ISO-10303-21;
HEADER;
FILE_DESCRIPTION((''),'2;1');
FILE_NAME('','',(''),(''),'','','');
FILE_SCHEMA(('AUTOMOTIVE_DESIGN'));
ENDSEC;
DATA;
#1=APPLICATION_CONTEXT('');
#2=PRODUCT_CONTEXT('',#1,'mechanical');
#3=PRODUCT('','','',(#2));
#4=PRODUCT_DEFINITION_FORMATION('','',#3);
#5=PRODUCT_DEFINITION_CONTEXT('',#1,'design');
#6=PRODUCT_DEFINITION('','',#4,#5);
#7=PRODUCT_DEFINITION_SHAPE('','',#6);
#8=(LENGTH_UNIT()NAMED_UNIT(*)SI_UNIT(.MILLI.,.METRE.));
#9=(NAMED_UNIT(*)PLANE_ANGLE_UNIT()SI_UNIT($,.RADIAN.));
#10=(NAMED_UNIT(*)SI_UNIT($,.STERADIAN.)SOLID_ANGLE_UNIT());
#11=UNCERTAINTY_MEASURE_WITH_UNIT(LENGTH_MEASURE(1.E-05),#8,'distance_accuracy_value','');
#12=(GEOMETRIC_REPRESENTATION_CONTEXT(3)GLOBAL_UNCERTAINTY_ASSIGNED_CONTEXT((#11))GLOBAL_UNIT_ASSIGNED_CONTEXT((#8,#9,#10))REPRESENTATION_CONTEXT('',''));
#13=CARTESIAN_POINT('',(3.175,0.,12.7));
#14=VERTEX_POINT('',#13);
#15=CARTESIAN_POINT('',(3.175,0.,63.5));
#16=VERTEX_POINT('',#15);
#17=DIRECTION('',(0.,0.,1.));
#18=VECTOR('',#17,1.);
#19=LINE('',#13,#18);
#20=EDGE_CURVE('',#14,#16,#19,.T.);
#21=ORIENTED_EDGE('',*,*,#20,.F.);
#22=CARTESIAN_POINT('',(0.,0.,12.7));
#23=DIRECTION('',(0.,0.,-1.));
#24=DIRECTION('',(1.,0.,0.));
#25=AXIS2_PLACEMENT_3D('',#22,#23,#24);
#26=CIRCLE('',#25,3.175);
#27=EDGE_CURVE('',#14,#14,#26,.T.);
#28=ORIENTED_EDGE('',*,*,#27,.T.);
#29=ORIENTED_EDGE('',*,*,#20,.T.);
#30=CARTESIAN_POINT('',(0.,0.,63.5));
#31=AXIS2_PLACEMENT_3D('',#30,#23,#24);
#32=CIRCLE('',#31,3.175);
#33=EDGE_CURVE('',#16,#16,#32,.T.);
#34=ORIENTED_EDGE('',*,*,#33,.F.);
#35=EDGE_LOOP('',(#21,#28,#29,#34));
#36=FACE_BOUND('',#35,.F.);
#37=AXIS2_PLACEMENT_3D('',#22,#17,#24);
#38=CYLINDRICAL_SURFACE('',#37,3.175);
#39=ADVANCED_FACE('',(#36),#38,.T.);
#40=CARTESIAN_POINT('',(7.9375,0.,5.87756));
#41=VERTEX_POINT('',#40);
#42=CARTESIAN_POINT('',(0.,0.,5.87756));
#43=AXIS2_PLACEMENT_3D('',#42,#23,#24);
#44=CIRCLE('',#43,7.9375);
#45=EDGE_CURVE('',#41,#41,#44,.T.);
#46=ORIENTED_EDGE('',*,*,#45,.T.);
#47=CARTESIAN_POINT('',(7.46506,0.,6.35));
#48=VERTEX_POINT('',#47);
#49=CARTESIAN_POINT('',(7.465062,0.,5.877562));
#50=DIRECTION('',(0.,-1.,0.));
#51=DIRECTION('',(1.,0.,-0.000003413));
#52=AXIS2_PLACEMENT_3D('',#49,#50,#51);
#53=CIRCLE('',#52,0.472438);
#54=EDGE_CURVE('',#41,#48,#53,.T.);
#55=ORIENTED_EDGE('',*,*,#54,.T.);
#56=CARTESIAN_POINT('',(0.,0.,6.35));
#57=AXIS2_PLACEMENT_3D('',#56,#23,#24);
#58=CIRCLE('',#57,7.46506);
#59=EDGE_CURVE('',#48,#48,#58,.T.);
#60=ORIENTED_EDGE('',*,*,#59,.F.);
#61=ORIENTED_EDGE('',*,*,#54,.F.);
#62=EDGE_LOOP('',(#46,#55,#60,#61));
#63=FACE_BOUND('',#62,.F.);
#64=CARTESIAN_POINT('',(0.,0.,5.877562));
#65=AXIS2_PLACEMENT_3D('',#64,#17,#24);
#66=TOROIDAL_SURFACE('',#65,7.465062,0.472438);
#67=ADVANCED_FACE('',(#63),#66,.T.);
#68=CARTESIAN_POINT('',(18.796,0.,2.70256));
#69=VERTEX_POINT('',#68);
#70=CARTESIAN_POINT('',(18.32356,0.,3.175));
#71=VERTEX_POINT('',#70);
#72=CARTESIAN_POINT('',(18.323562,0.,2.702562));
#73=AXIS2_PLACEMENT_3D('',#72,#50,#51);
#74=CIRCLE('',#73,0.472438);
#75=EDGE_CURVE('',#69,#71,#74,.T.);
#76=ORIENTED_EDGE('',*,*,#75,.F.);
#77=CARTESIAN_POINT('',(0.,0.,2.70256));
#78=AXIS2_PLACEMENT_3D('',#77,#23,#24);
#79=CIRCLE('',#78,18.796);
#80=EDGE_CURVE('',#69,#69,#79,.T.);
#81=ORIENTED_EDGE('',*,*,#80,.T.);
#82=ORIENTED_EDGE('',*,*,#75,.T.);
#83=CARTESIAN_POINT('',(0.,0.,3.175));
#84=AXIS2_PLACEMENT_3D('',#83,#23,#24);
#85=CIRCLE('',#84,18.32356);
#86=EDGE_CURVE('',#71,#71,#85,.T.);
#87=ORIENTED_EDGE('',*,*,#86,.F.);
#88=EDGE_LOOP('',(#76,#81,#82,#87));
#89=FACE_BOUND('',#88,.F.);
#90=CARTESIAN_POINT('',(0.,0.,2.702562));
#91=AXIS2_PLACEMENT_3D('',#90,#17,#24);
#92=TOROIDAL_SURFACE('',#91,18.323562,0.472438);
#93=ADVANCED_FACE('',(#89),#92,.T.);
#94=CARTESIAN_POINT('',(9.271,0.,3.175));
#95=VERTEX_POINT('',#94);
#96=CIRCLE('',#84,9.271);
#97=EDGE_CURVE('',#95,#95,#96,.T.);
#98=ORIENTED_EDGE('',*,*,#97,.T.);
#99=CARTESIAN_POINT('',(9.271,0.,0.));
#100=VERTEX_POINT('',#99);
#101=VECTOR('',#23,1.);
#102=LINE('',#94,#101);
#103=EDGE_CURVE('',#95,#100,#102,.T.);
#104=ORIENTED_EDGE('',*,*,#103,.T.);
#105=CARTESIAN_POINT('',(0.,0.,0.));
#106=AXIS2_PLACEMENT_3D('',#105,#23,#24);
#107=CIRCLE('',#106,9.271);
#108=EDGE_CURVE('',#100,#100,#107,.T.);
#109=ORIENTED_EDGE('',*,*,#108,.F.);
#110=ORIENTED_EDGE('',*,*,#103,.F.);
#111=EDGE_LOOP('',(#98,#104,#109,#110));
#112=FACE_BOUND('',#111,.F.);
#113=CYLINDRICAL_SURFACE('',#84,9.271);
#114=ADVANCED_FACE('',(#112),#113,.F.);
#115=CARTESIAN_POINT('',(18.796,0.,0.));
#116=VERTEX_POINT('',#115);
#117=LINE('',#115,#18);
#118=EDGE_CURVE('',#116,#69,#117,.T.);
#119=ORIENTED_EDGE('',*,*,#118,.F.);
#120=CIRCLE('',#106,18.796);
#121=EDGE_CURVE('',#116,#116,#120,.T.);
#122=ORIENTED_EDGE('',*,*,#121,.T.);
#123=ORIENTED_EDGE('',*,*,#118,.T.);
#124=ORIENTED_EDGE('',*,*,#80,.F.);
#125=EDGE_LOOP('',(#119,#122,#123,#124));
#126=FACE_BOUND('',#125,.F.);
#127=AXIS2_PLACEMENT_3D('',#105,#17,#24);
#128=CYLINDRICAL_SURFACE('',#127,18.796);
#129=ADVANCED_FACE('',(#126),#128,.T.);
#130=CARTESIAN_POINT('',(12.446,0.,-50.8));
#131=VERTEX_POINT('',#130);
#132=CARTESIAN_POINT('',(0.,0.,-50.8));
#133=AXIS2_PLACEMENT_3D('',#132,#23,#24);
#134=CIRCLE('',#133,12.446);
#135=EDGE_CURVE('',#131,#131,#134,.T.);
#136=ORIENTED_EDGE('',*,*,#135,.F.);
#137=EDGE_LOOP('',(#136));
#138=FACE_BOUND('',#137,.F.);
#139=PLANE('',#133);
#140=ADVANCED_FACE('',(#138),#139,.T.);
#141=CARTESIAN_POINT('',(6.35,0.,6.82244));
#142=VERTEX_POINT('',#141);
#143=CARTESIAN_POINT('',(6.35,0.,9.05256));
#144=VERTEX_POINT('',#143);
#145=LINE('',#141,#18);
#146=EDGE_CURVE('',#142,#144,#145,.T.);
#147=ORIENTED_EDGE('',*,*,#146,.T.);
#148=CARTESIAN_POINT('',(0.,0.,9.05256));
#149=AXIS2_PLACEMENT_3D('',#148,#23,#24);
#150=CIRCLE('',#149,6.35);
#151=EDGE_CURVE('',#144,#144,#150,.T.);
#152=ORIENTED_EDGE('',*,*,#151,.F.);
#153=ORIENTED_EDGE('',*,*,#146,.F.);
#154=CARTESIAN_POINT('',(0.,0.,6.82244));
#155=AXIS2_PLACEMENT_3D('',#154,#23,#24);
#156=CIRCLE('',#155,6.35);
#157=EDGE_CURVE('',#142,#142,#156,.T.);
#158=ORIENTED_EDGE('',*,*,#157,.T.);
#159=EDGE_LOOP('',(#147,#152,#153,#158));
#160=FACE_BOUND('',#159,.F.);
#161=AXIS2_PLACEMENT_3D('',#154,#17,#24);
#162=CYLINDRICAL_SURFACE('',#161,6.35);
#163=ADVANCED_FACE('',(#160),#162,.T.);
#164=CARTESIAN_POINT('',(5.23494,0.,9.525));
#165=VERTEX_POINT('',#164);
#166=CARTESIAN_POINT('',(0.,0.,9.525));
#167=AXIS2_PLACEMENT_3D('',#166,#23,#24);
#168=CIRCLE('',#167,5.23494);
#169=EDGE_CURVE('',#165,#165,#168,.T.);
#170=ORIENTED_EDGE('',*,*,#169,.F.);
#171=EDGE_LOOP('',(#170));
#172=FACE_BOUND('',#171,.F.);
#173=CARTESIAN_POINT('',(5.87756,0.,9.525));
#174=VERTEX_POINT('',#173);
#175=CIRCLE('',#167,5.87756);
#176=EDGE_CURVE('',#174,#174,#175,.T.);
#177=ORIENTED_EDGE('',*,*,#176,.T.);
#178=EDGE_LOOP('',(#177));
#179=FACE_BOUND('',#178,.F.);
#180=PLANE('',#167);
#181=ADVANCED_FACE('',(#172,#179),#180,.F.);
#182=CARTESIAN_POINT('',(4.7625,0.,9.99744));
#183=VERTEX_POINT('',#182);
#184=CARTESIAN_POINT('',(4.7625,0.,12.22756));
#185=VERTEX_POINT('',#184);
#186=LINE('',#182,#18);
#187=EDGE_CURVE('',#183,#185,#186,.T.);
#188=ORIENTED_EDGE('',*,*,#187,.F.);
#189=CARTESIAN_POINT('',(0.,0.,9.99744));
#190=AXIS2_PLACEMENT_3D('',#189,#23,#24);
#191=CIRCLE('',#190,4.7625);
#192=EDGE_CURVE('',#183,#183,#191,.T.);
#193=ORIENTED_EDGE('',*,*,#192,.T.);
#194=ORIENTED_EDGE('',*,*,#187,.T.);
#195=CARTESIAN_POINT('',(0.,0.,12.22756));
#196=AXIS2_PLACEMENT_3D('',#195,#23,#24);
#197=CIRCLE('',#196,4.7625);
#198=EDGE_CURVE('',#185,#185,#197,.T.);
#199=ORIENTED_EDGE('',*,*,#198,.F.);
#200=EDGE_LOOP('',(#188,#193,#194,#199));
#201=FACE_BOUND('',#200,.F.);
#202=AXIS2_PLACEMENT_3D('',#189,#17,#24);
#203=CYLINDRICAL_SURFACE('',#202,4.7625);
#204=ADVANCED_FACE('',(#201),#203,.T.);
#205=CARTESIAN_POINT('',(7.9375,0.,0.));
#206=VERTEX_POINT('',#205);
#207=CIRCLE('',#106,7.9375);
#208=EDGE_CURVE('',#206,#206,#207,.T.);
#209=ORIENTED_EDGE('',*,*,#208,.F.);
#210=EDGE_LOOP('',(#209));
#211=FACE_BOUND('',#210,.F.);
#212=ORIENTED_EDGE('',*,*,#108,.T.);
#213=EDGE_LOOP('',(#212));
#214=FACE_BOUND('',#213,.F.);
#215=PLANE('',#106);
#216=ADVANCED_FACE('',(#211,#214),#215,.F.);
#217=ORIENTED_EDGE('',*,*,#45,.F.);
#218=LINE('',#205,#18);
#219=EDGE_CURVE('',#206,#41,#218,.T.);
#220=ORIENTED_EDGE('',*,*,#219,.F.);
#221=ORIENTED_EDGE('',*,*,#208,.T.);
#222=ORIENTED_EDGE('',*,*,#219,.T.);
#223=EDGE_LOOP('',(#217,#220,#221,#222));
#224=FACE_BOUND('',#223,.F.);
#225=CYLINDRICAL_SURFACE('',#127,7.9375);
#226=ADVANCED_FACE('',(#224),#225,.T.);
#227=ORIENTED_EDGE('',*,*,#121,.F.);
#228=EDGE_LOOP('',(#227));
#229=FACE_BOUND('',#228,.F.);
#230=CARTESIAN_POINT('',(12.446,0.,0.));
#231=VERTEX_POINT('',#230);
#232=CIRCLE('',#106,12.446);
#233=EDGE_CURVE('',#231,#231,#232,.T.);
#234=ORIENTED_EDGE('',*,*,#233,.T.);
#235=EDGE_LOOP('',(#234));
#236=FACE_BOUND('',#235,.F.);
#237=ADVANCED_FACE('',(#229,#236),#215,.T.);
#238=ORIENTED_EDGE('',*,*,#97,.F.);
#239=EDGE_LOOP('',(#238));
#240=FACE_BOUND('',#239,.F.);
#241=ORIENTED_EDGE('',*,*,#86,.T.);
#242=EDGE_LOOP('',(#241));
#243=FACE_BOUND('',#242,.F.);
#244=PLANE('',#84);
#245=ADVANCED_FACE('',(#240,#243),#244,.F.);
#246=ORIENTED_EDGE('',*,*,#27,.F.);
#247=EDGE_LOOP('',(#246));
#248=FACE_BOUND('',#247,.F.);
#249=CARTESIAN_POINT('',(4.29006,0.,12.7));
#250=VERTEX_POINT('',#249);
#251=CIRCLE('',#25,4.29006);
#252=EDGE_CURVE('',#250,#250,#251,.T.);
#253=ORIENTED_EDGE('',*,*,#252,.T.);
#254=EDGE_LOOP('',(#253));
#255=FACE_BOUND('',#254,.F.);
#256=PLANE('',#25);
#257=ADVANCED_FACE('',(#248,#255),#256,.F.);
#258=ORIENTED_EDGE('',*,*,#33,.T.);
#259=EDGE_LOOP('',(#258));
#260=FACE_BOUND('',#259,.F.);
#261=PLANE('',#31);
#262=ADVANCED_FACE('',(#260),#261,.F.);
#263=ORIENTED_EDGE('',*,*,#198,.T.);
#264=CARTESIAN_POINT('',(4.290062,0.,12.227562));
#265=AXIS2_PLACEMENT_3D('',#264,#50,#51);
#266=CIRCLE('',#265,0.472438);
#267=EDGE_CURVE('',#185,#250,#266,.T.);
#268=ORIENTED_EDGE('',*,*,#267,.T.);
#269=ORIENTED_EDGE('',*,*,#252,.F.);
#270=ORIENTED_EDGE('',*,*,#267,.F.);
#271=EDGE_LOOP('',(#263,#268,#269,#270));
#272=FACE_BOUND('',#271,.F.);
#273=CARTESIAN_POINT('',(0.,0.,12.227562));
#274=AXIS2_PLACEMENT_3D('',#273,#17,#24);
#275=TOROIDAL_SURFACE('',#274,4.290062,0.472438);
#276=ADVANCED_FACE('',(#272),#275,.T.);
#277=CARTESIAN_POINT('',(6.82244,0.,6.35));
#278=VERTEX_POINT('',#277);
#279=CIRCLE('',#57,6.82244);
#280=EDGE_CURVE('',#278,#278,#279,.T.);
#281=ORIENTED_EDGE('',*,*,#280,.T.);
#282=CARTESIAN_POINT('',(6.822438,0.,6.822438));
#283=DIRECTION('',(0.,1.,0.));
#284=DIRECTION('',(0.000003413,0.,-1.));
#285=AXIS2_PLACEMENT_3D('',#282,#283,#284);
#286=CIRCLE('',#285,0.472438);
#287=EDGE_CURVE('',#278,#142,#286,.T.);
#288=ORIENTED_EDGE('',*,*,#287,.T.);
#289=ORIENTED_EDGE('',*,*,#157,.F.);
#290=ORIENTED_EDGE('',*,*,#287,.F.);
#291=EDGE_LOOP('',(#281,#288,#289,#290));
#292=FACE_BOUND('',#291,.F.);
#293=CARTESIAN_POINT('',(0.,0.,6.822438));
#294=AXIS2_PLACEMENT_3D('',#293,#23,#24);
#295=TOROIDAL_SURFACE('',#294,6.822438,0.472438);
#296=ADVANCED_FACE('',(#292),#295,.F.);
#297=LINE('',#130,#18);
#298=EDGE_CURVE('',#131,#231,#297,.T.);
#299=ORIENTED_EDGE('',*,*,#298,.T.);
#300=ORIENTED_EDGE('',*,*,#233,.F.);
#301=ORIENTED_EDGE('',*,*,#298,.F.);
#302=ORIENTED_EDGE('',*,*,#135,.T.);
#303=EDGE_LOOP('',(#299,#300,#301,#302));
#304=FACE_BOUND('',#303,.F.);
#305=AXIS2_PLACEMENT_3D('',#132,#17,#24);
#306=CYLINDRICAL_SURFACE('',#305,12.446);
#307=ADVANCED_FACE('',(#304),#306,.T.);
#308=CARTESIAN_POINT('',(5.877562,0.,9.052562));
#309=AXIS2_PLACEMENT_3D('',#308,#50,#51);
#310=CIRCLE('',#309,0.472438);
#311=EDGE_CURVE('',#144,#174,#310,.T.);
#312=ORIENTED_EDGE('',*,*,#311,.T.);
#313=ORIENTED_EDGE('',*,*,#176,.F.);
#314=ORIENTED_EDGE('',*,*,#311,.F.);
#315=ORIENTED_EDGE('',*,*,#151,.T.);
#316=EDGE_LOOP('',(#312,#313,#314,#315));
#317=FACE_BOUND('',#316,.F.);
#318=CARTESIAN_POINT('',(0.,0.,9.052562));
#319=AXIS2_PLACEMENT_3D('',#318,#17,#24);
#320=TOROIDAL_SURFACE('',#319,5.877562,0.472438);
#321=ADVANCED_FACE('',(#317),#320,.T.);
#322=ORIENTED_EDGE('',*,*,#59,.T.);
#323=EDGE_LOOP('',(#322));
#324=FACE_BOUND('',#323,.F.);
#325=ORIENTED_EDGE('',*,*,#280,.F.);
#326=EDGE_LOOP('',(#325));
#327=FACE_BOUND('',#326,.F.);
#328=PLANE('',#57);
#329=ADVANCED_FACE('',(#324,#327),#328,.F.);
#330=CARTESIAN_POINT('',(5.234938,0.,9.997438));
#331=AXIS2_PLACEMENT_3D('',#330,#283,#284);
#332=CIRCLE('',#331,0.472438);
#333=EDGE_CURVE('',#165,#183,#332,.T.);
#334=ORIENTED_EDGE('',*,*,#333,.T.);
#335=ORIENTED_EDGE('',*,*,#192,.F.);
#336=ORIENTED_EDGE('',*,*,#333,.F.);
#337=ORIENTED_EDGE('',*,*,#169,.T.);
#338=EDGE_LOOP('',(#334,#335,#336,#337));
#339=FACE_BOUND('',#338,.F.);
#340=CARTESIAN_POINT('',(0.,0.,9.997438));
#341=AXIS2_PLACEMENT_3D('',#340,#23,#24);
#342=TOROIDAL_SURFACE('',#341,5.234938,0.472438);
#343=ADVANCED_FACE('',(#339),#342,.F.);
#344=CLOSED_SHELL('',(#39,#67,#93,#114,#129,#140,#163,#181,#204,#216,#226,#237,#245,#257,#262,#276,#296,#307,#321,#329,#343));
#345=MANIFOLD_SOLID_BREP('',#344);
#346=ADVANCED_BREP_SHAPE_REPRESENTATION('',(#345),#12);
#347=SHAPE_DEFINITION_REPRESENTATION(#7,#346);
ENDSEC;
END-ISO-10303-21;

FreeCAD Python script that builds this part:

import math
import FreeCAD as App
import Part
import Sketcher

V = App.Vector
Q = App.Units.Quantity

doc = App.newDocument("Part")
body = doc.addObject("PartDesign::Body", "Body")

# Sketch on XZ plane
sketch1 = body.newObject("Sketcher::SketchObject", "Sketch")
sketch1.AttachmentSupport = (doc.getObject("XZ_Plane"), [""])
sketch1.MapMode = "FlatFace"
sketch1.addGeometry(Part.LineSegment(V(0, -50.8, 0), V(12.45, -50.8, 0)), False)
sketch1.addGeometry(Part.LineSegment(V(12.45, -50.8, 0), V(12.45, 0, 0)), False)
sketch1.addGeometry(Part.LineSegment(V(12.45, 0, 0), V(18.8, 0, 0)), False)
sketch1.addGeometry(Part.LineSegment(V(18.8, 0, 0), V(18.8, 2.7, 0)), False)
sketch1.addGeometry(Part.ArcOfCircle(Part.Circle(V(18.32, 2.7, 0), V(0, 0, 1), 0.47), math.radians(0), math.radians(90)), False)
sketch1.addGeometry(Part.LineSegment(V(18.32, 3.17, 0), V(9.27, 3.17, 0)), False)
sketch1.addGeometry(Part.LineSegment(V(9.27, 3.17, 0), V(9.27, 0, 0)), False)
sketch1.addGeometry(Part.LineSegment(V(9.27, 0, 0), V(7.94, 0, 0)), False)
sketch1.addGeometry(Part.LineSegment(V(7.94, 0, 0), V(7.94, 5.88, 0)), False)
sketch1.addGeometry(Part.ArcOfCircle(Part.Circle(V(7.47, 5.88, 0), V(0, 0, 1), 0.47), math.radians(0), math.radians(90)), False)
sketch1.addGeometry(Part.LineSegment(V(7.47, 6.35, 0), V(6.82, 6.35, 0)), False)
sketch1.addGeometry(Part.ArcOfCircle(Part.Circle(V(6.82, 6.82, 0), V(0, 0, 1), 0.47), math.radians(180), math.radians(270)), False)
sketch1.addGeometry(Part.LineSegment(V(6.35, 6.82, 0), V(6.35, 9.05, 0)), False)
sketch1.addGeometry(Part.ArcOfCircle(Part.Circle(V(5.88, 9.05, 0), V(0, 0, 1), 0.47), math.radians(0), math.radians(90)), False)
sketch1.addGeometry(Part.LineSegment(V(5.88, 9.53, 0), V(5.23, 9.53, 0)), False)
sketch1.addGeometry(Part.ArcOfCircle(Part.Circle(V(5.23, 10, 0), V(0, 0, 1), 0.47), math.radians(180), math.radians(270)), False)
sketch1.addGeometry(Part.LineSegment(V(4.76, 10, 0), V(4.76, 12.23, 0)), False)
sketch1.addGeometry(Part.ArcOfCircle(Part.Circle(V(4.29, 12.23, 0), V(0, 0, 1), 0.47), math.radians(0), math.radians(90)), False)
sketch1.addGeometry(Part.LineSegment(V(4.29, 12.7, 0), V(3.17, 12.7, 0)), False)
sketch1.addGeometry(Part.LineSegment(V(3.17, 12.7, 0), V(3.17, 63.5, 0)), False)
sketch1.addGeometry(Part.LineSegment(V(3.17, 63.5, 0), V(0, 63.5, 0)), False)
sketch1.addGeometry(Part.LineSegment(V(0, 63.5, 0), V(0, -50.8, 0)), False)
sketch1.addConstraint(Sketcher.Constraint("Coincident", 0, 2, 1, 1))
sketch1.addConstraint(Sketcher.Constraint("Coincident", 1, 2, 2, 1))
sketch1.addConstraint(Sketcher.Constraint("Coincident", 2, 2, 3, 1))
sketch1.addConstraint(Sketcher.Constraint("Coincident", 3, 2, 4, 1))
sketch1.addConstraint(Sketcher.Constraint("Coincident", 4, 2, 5, 1))
sketch1.addConstraint(Sketcher.Constraint("Coincident", 5, 2, 6, 1))
sketch1.addConstraint(Sketcher.Constraint("Coincident", 6, 2, 7, 1))
sketch1.addConstraint(Sketcher.Constraint("Coincident", 7, 2, 8, 1))
sketch1.addConstraint(Sketcher.Constraint("Coincident", 8, 2, 9, 1))
sketch1.addConstraint(Sketcher.Constraint("Coincident", 9, 2, 10, 1))
sketch1.addConstraint(Sketcher.Constraint("Coincident", 10, 2, 11, 2))
sketch1.addConstraint(Sketcher.Constraint("Coincident", 11, 1, 12, 1))
sketch1.addConstraint(Sketcher.Constraint("Coincident", 12, 2, 13, 1))
sketch1.addConstraint(Sketcher.Constraint("Coincident", 13, 2, 14, 1))
sketch1.addConstraint(Sketcher.Constraint("Coincident", 14, 2, 15, 2))
sketch1.addConstraint(Sketcher.Constraint("Coincident", 15, 1, 16, 1))
sketch1.addConstraint(Sketcher.Constraint("Coincident", 16, 2, 17, 1))
sketch1.addConstraint(Sketcher.Constraint("Coincident", 17, 2, 18, 1))
sketch1.addConstraint(Sketcher.Constraint("Coincident", 18, 2, 19, 1))
sketch1.addConstraint(Sketcher.Constraint("Coincident", 19, 2, 20, 1))
sketch1.addConstraint(Sketcher.Constraint("Coincident", 20, 2, 21, 1))
sketch1.addConstraint(Sketcher.Constraint("Coincident", 21, 2, 0, 1))
sketch1.addConstraint(Sketcher.Constraint("Horizontal", 0))
sketch1.addConstraint(Sketcher.Constraint("Vertical", 1))
sketch1.addConstraint(Sketcher.Constraint("Horizontal", 2))
sketch1.addConstraint(Sketcher.Constraint("Vertical", 3))
sketch1.addConstraint(Sketcher.Constraint("Horizontal", 5))
sketch1.addConstraint(Sketcher.Constraint("Vertical", 6))
sketch1.addConstraint(Sketcher.Constraint("Horizontal", 7))
sketch1.addConstraint(Sketcher.Constraint("Vertical", 8))
sketch1.addConstraint(Sketcher.Constraint("Horizontal", 10))
sketch1.addConstraint(Sketcher.Constraint("Vertical", 12))
sketch1.addConstraint(Sketcher.Constraint("Horizontal", 14))
sketch1.addConstraint(Sketcher.Constraint("Vertical", 16))
sketch1.addConstraint(Sketcher.Constraint("Horizontal", 18))
sketch1.addConstraint(Sketcher.Constraint("Vertical", 19))
sketch1.addConstraint(Sketcher.Constraint("Horizontal", 20))
sketch1.addConstraint(Sketcher.Constraint("Vertical", 21))
sketch1.addConstraint(Sketcher.Constraint("Equal", 4, 9))
sketch1.addConstraint(Sketcher.Constraint("Equal", 9, 11))
sketch1.addConstraint(Sketcher.Constraint("Equal", 11, 13))
sketch1.addConstraint(Sketcher.Constraint("Equal", 13, 15))
sketch1.addConstraint(Sketcher.Constraint("Equal", 15, 17))
sketch1.addConstraint(Sketcher.Constraint("PointOnObject", 1, 2, -1))
sketch1.addConstraint(Sketcher.Constraint("PointOnObject", 6, 2, -1))
sketch1.addConstraint(Sketcher.Constraint("PointOnObject", 20, 2, -2))
sketch1.addConstraint(Sketcher.Constraint("Horizontal", 4, 3, 3, 2))
sketch1.addConstraint(Sketcher.Constraint("Horizontal", 9, 3, 8, 2))
sketch1.addConstraint(Sketcher.Constraint("Horizontal", 13, 3, 12, 2))
sketch1.addConstraint(Sketcher.Constraint("Horizontal", 17, 3, 16, 2))
sketch1.addConstraint(Sketcher.Constraint("Vertical", 11, 3, 10, 2))
sketch1.addConstraint(Sketcher.Constraint("Vertical", 15, 3, 14, 2))
sketch1.addConstraint(Sketcher.Constraint("Equal", 10, 14))
sketch1.addConstraint(Sketcher.Constraint("Equal", 20, 6))
sketch1.addConstraint(Sketcher.Constraint("Equal", 12, 16))
sketch1.addConstraint(Sketcher.Constraint("Equal", 1, 19))
sketch1.addConstraint(Sketcher.Constraint("DistanceY", 1, 1, 1, 2, Q("2 in")))
sketch1.addConstraint(Sketcher.Constraint("DistanceY", 21, 2, 21, 1, Q("4.5 in")))
sketch1.addConstraint(Sketcher.Constraint("DistanceX", 0, 1, 0, 2, Q("0.49 in")))
sketch1.addConstraint(Sketcher.Constraint("DistanceX", 2, 1, 2, 2, Q("0.25 in")))
sketch1.addConstraint(Sketcher.Constraint("Radius", 4, Q("0.0185999 in")))
sketch1.addConstraint(Sketcher.Constraint("DistanceX", 20, 2, 20, 1, Q("0.125 in")))
sketch1.addConstraint(Sketcher.Constraint("DistanceY", -1, 1, 9, 2, Q("0.25 in")))
sketch1.addConstraint(Sketcher.Constraint("DistanceX", -1, 1, 11, 1, Q("0.25 in")))
sketch1.addConstraint(Sketcher.Constraint("DistanceY", 4, 3, 13, 3, Q("0.25 in")))
sketch1.addConstraint(Sketcher.Constraint("DistanceX", 5, 2, 5, 1, Q("0.3564 in")))
sketch1.addConstraint(Sketcher.Constraint("DistanceX", 7, 2, 7, 1, Q("0.0525 in")))
sketch1.addConstraint(Sketcher.Constraint("DistanceX", 10, 2, 10, 1, Q("0.0253 in")))
sketch1.addConstraint(Sketcher.Constraint("DistanceX", 18, 2, 18, 1, Q("0.0439 in")))
sketch1.addConstraint(Sketcher.Constraint("DistanceY", 12, 1, 12, 2, Q("0.0878 in")))
sketch1.addConstraint(Sketcher.Constraint("DistanceX", -1, 1, 5, 2, Q("0.365 in")))
sketch1.addConstraint(Sketcher.Constraint("DistanceX", -1, 1, 15, 1, Q("0.1875 in")))
revolution = body.newObject("PartDesign::Revolution", "Revolution")
revolution.Profile = sketch1
revolution.ReferenceAxis = (sketch1, ["V_Axis"])
revolution.Angle = 360

doc.recompute()
